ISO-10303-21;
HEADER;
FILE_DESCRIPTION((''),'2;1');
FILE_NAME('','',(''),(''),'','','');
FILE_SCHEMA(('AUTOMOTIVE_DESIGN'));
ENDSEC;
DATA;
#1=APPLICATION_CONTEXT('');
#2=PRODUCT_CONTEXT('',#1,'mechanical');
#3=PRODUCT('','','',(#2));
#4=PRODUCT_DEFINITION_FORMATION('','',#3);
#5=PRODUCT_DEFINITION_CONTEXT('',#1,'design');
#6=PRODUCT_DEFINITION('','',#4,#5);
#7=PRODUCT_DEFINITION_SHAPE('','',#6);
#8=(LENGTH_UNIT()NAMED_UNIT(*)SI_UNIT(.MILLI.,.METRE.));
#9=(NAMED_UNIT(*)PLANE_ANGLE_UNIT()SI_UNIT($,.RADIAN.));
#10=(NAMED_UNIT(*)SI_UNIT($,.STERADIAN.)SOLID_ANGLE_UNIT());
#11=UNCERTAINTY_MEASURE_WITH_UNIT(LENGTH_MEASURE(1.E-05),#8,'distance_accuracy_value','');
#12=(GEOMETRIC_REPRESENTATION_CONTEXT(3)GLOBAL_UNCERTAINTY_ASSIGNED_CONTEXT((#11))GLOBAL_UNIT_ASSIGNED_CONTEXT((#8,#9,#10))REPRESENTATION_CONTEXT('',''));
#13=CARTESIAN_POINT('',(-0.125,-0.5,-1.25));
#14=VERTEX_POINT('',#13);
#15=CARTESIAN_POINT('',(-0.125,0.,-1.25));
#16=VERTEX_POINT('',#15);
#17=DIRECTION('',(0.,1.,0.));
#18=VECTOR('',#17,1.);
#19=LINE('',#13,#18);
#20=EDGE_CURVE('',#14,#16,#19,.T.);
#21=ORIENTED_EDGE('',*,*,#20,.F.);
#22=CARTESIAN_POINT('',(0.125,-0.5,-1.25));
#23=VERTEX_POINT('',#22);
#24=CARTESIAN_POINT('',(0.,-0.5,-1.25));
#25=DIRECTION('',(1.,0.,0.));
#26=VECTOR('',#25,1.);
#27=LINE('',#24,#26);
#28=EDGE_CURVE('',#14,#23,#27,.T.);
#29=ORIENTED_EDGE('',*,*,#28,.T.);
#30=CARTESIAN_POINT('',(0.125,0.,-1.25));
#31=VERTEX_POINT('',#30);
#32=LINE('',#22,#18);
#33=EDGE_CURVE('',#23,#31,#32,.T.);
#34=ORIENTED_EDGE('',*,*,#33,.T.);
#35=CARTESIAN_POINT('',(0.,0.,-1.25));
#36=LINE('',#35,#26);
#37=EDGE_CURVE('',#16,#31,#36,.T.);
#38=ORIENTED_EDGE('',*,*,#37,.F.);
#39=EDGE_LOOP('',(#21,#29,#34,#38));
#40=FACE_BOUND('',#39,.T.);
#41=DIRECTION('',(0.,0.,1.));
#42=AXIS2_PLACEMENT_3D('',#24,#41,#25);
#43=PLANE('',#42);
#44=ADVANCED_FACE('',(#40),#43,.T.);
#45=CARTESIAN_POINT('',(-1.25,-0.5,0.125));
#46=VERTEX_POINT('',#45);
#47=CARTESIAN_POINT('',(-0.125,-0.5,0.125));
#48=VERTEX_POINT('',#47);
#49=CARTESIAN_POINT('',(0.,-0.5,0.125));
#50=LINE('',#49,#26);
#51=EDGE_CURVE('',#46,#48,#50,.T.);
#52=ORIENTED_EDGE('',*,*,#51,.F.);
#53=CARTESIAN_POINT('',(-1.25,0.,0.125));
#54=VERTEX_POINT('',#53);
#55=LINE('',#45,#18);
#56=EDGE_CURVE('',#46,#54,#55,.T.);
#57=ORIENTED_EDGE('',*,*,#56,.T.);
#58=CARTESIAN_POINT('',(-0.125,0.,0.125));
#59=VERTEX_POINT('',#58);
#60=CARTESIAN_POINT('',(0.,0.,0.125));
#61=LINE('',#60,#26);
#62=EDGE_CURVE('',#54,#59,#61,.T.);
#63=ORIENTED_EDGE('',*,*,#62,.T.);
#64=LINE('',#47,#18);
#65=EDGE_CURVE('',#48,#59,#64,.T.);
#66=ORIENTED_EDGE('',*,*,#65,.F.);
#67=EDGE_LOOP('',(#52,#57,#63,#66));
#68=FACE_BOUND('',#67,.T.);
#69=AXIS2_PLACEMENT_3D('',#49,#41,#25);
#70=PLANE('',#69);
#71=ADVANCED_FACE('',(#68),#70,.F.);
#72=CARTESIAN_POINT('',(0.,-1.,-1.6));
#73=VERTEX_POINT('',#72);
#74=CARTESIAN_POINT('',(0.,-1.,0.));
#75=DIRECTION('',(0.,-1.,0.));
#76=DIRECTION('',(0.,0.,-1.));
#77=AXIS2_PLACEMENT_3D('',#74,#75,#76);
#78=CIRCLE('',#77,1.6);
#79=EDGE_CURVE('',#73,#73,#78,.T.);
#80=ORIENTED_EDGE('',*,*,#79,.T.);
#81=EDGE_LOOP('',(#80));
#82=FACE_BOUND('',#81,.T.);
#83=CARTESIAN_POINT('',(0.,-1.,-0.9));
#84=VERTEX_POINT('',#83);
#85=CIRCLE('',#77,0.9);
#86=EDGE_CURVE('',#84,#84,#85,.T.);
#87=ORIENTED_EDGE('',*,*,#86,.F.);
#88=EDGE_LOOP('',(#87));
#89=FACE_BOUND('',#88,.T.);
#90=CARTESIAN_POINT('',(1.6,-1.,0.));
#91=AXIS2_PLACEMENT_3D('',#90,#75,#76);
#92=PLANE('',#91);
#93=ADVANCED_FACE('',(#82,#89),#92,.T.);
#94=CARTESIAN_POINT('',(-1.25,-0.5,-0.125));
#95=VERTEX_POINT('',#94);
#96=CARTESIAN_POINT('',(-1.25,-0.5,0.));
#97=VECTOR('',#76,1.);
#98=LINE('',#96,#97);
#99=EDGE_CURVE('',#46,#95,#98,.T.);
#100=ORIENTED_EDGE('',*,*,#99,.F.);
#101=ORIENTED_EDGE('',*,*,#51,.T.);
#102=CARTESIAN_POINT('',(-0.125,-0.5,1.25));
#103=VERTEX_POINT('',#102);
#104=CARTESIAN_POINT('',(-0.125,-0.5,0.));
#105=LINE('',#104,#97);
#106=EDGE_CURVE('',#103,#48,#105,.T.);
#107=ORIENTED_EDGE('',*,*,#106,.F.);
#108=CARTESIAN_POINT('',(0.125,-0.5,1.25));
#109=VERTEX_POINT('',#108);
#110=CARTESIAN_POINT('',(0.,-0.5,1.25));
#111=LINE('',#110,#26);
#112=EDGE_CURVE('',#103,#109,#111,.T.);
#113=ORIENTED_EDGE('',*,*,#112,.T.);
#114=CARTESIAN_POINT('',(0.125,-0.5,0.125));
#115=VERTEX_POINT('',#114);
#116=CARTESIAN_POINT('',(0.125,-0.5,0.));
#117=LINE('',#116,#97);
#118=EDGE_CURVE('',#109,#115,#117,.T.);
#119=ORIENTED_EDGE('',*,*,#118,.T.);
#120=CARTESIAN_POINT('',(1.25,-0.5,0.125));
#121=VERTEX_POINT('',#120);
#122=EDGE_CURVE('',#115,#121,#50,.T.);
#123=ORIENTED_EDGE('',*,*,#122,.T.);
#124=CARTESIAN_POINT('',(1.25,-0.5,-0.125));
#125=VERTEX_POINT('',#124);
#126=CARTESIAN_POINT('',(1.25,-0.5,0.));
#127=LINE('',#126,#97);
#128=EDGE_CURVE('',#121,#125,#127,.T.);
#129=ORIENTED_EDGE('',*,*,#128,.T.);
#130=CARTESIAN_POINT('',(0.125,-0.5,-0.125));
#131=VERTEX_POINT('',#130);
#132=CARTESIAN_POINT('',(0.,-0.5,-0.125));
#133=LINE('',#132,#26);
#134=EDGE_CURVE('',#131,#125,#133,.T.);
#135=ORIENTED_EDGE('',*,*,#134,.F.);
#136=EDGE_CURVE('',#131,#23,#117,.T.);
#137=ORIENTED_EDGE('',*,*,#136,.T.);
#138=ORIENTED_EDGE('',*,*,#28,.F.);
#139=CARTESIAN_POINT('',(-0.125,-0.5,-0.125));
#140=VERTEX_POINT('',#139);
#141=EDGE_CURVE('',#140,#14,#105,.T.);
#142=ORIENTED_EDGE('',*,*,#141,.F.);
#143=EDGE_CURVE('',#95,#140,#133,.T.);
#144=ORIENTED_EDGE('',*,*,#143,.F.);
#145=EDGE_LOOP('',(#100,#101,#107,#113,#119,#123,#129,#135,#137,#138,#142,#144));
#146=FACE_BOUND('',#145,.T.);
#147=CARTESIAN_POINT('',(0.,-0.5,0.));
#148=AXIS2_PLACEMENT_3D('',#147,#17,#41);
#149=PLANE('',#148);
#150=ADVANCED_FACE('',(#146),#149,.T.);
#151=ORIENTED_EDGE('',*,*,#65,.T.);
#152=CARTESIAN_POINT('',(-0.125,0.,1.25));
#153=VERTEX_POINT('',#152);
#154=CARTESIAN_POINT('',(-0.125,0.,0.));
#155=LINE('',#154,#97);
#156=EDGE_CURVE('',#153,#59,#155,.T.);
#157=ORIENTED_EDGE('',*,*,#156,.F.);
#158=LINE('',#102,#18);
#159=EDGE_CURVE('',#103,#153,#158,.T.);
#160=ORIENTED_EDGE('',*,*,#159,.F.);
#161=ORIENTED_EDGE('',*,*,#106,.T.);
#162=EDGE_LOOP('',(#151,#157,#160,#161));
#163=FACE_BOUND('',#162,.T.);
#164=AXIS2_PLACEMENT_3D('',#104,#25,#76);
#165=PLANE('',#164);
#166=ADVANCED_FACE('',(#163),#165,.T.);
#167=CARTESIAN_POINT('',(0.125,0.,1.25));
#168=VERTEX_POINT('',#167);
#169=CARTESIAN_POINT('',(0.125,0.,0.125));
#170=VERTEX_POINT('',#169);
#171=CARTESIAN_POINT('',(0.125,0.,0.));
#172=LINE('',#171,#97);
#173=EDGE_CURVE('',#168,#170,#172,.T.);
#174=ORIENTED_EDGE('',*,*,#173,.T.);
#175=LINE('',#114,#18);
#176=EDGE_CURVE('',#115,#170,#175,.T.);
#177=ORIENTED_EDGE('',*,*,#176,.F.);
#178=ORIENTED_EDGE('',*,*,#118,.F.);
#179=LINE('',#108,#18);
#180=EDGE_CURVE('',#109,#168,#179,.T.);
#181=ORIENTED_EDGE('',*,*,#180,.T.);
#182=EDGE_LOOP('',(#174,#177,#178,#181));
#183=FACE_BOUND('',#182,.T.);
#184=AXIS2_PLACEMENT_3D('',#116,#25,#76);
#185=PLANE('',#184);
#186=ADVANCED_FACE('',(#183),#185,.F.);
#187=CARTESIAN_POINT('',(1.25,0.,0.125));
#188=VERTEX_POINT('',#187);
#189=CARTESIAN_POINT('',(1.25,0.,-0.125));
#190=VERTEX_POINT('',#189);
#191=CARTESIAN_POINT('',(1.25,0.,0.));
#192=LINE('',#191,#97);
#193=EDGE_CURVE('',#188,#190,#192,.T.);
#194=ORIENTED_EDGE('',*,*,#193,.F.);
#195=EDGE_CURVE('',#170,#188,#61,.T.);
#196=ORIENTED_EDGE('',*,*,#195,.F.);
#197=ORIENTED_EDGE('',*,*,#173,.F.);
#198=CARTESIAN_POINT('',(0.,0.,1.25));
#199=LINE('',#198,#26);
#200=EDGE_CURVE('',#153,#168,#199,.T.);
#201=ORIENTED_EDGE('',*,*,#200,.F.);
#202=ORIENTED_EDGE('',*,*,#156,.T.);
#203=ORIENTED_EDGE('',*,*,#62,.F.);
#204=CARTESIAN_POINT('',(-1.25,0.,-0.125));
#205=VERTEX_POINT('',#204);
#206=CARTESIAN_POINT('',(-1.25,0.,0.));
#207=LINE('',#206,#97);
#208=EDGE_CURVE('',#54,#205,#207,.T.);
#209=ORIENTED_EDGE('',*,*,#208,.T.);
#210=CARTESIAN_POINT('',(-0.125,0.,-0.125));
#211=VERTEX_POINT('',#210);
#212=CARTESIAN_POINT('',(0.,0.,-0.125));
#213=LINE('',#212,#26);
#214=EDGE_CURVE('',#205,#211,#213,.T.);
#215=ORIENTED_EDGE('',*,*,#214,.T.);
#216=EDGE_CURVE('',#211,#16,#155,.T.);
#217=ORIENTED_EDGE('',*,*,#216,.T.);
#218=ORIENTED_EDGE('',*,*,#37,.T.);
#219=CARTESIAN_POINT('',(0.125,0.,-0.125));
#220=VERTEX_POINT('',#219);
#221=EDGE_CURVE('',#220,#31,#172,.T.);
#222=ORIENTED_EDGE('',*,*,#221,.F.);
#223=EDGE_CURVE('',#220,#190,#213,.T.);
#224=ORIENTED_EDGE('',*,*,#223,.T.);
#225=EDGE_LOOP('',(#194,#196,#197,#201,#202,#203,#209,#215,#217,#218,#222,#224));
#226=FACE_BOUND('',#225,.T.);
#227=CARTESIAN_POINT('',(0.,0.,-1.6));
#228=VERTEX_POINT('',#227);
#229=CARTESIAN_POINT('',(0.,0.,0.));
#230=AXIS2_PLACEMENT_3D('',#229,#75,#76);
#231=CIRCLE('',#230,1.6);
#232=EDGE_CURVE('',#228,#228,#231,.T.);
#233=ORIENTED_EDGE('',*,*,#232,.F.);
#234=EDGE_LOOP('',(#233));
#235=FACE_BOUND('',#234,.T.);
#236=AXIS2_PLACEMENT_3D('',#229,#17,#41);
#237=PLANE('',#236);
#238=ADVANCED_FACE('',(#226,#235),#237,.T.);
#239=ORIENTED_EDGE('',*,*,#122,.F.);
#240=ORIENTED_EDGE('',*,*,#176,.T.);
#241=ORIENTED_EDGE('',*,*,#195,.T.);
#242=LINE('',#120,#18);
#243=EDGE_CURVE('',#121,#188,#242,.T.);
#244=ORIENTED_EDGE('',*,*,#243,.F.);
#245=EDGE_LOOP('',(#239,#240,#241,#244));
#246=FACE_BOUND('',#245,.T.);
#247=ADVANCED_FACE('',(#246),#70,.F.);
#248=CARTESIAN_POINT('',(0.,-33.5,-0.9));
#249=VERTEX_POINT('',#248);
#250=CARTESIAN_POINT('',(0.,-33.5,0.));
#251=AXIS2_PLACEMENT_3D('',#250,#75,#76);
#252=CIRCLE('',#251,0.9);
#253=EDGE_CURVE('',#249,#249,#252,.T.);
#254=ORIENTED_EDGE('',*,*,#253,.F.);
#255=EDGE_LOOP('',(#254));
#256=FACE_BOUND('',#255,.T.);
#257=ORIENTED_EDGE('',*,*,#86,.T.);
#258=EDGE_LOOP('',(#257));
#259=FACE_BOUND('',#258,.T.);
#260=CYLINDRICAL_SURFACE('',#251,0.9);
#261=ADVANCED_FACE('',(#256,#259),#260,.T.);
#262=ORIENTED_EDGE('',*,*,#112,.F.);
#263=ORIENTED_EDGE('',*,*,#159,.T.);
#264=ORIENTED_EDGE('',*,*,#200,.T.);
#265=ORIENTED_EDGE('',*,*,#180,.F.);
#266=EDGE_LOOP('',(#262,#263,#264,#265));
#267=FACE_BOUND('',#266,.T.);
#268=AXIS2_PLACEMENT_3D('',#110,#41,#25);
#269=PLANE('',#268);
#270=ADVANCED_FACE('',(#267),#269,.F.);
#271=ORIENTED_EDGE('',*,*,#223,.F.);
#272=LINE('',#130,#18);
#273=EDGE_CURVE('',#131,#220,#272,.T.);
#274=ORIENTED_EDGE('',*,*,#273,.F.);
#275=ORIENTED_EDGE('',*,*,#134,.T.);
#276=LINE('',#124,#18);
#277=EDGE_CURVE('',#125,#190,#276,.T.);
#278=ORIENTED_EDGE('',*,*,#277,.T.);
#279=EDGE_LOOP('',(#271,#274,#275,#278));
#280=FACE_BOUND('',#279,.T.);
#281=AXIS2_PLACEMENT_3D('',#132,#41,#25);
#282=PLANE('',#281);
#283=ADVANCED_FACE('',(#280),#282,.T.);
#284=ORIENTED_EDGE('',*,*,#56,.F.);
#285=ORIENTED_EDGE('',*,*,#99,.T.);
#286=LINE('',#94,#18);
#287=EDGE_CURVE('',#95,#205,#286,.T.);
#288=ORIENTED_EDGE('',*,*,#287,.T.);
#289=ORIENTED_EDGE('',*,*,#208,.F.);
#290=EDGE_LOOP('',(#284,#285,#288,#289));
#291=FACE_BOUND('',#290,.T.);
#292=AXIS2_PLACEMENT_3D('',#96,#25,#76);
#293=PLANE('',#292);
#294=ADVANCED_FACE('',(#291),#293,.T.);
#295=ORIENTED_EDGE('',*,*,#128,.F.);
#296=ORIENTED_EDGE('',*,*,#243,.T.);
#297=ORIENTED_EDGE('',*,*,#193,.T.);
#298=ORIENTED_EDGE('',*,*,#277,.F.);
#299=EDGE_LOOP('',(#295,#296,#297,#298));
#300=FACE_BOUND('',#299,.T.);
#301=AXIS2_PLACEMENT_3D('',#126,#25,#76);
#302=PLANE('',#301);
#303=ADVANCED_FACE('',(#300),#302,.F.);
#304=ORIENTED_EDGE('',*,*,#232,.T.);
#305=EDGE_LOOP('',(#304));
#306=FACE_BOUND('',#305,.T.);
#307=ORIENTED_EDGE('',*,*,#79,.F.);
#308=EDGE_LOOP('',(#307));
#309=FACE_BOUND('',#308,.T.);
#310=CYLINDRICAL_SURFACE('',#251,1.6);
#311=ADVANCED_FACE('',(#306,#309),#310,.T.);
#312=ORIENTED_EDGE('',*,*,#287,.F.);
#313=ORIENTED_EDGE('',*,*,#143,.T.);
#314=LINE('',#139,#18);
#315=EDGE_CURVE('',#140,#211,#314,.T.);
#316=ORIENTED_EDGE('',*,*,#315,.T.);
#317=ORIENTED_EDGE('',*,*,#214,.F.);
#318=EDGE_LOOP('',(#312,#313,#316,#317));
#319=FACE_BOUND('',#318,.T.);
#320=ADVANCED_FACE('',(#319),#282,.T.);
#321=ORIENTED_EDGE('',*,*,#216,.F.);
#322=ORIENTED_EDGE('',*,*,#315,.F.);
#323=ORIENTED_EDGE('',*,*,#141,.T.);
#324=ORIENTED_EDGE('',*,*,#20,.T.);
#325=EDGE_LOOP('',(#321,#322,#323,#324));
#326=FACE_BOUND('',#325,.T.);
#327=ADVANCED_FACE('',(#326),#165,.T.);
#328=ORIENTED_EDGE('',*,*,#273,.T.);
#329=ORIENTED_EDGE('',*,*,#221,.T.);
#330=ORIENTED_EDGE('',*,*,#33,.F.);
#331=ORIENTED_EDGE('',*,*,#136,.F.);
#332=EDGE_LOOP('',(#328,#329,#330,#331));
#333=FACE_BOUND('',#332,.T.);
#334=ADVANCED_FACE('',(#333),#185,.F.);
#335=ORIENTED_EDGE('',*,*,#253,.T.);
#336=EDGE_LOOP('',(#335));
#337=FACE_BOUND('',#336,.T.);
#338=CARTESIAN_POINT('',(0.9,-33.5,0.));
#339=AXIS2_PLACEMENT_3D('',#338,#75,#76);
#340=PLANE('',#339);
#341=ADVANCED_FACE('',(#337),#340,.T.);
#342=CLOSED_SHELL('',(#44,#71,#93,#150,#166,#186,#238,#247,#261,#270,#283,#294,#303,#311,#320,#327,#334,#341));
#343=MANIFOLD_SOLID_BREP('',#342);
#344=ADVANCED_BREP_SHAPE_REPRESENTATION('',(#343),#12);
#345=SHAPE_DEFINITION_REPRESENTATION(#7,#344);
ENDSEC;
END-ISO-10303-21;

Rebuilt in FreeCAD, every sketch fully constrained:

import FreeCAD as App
import Part
import Sketcher
from FreeCAD import Vector
Q = App.Units.Quantity


def add_polygon(sketch, points):
    """Adds a closed chain of lines whose ends are joined by coincident constraints."""
    first, n = sketch.GeometryCount, len(points)
    for a, b in zip(points, points[1:] + points[:1]):
        sketch.addGeometry(Part.LineSegment(App.Vector(*a, 0), App.Vector(*b, 0)), False)
    for i in range(n):
        sketch.addConstraint(Sketcher.Constraint("Coincident", first + i, 2, first + (i + 1) % n, 1))

doc = App.newDocument("Part")
body = doc.addObject("PartDesign::Body", "Body")

# Sketch on XY plane
sketch1 = doc.addObject("Sketcher::SketchObject", "Sketch")
body.addObject(sketch1)
sketch1.AttachmentSupport = (doc.XY_Plane, [""])
sketch1.MapMode = "FlatFace"
add_polygon(sketch1, [(1.6, 0), (0, 0), (0, -33.5), (0.9, -33.5), (0.9, -1), (1.6, -1)])  # lines 0-5
sketch1.addConstraint([
    Sketcher.Constraint("Horizontal", 0),
    Sketcher.Constraint("Vertical", 1),
    Sketcher.Constraint("Horizontal", 2),
    Sketcher.Constraint("Vertical", 3),
    Sketcher.Constraint("Horizontal", 4),
    Sketcher.Constraint("Vertical", 5),
    Sketcher.Constraint("Coincident", 0, 2, -1, 1),
    Sketcher.Constraint("DistanceY", 5, 1, 5, 2, Q("1 mm")),
    Sketcher.Constraint("DistanceX", 0, 2, 0, 1, Q("1.6 mm")),
    Sketcher.Constraint("DistanceX", 2, 1, 2, 2, Q("0.9 mm")),
    Sketcher.Constraint("DistanceY", 1, 2, 1, 1, Q("33.5 mm")),
])
revolution = doc.addObject("PartDesign::Revolution", "Revolution")
body.addObject(revolution)
revolution.Profile = sketch1
revolution.ReferenceAxis = (sketch1, ["V_Axis"])
revolution.Angle = 360

# Sketch on XZ plane
sketch2 = doc.addObject("Sketcher::SketchObject", "Sketch001")
body.addObject(sketch2)
sketch2.AttachmentSupport = (doc.XZ_Plane, [""])
sketch2.MapMode = "FlatFace"
add_polygon(sketch2, [(-0.12, 0.12), (-0.12, 1.25), (0.12, 1.25), (0.12, 0.12), (1.25, 0.12), (1.25, -0.12), (0.12, -0.12), (0.12, -1.25), (-0.12, -1.25), (-0.12, -0.12), (-1.25, -0.12), (-1.25, 0.12)])  # lines 0-11
sketch2.addConstraint([
    Sketcher.Constraint("Vertical", 0),
    Sketcher.Constraint("Horizontal", 1),
    Sketcher.Constraint("Vertical", 2),
    Sketcher.Constraint("Horizontal", 3),
    Sketcher.Constraint("Vertical", 4),
    Sketcher.Constraint("Horizontal", 5),
    Sketcher.Constraint("Vertical", 6),
    Sketcher.Constraint("Horizontal", 7),
    Sketcher.Constraint("Vertical", 8),
    Sketcher.Constraint("Horizontal", 9),
    Sketcher.Constraint("Vertical", 10),
    Sketcher.Constraint("Horizontal", 11),
    Sketcher.Constraint("Symmetric", 0, 2, 6, 2, -1, 1),
    Sketcher.Constraint("Symmetric", 2, 2, 8, 2, -1, 1),
    Sketcher.Constraint("Symmetric", 4, 2, 10, 2, -1, 1),
    Sketcher.Constraint("Symmetric", 5, 2, 8, 2, -2),
    Sketcher.Constraint("Equal", 11, 0),
    Sketcher.Constraint("Equal", 7, 4),
    Sketcher.Constraint("DistanceX", 1, 1, 1, 2, Q("0.25 mm")),
    Sketcher.Constraint("DistanceY", 6, 2, 1, 2, Q("2.5 mm")),
])
pocket1 = doc.addObject("PartDesign::Pocket", "Pocket")
body.addObject(pocket1)
pocket1.Profile = sketch2
pocket1.Length = 0.5
pocket1.Reversed = True

doc.recompute()
